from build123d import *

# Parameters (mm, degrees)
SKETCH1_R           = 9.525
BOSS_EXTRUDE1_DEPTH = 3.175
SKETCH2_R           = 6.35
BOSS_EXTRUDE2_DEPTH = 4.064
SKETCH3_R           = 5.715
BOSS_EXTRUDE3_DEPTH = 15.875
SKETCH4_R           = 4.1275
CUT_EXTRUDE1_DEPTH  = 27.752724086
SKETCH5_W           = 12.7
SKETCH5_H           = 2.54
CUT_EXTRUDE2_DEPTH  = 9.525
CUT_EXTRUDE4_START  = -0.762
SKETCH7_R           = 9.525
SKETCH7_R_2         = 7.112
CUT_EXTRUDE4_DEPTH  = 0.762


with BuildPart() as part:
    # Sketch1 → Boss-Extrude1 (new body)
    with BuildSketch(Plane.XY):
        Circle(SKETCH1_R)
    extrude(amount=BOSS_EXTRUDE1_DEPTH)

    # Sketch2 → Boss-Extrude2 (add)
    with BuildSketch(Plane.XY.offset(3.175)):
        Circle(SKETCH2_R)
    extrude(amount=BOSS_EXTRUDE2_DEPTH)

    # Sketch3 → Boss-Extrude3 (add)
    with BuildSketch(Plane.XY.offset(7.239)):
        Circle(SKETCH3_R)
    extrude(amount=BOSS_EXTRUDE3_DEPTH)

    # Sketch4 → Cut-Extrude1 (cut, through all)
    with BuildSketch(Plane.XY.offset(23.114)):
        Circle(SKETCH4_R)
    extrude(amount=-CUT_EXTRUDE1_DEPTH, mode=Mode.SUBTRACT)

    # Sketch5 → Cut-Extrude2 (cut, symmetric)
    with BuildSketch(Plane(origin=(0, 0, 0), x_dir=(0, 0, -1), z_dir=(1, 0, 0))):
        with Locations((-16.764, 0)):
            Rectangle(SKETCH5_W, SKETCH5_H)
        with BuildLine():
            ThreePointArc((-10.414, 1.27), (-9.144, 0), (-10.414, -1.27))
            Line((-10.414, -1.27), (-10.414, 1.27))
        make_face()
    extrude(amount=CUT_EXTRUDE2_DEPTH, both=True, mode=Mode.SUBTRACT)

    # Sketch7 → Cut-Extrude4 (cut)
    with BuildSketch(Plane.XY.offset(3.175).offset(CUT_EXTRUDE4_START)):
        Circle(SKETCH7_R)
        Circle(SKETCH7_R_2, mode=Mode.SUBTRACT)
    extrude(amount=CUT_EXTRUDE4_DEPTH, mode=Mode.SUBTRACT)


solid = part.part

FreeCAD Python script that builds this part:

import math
import FreeCAD as App
import Part
import Sketcher
Q = App.Units.Quantity

doc = App.newDocument("Part")
params = doc.addObject("Spreadsheet::Sheet", "Params")
for row, (alias, value) in enumerate([
    ("sketch1_diameter", "0.75 in"),
    ("pad1_length", "0.125 in"),
    ("sketch2_diameter", "0.5 in"),
    ("pad2_length", "0.16 in"),
    ("sketch3_diameter", "0.45 in"),
    ("pad3_length", "0.625 in"),
    ("sketch4_diameter", "0.325 in"),
    ("sketch5_radius", "0.05 in"),
    ("sketch5_height", "0.5 in"),
    ("pocket2_length", "0.75 in"),
    ("sketch6_diameter", "0.75 in"),
    ("sketch6_diameter2", "0.56 in"),
    ("pocket3_length", "0.03 in"),
], start=1):
    params.set(f"A{row}", alias)
    params.set(f"B{row}", "=" + value)
    params.setAlias(f"B{row}", alias)

body = doc.addObject("PartDesign::Body", "Body")

# Sketch on XY plane
sketch1 = body.newObject("Sketcher::SketchObject", "Sketch")
sketch1.AttachmentSupport = (doc.getObject("XY_Plane"), [""])
sketch1.MapMode = "FlatFace"
sketch1.addGeometry(Part.Circle(App.Vector(0, 0, 0), App.Vector(0, 0, 1), 10), False)
sketch1.addConstraint([
    Sketcher.Constraint("Coincident", 0, 3, -1, 1),
    Sketcher.Constraint("Diameter", 0, Q("0.75 in")),
])
sketch1.setExpression("Constraints[1]", "Params.sketch1_diameter")
pad1 = body.newObject("PartDesign::Pad", "Pad")
pad1.Profile = sketch1
pad1.setExpression("Length", "Params.pad1_length")

# Sketch on XY plane
sketch2 = body.newObject("Sketcher::SketchObject", "Sketch001")
sketch2.AttachmentSupport = (doc.getObject("XY_Plane"), [""])
sketch2.MapMode = "FlatFace"
sketch2.AttachmentOffset = App.Placement(App.Vector(0, 0, 0.125 * 25.4), App.Rotation())
sketch2.addGeometry(Part.Circle(App.Vector(0, 0, 0), App.Vector(0, 0, 1), 6), False)
sketch2.addConstraint([
    Sketcher.Constraint("Coincident", 0, 3, -1, 1),
    Sketcher.Constraint("Diameter", 0, Q("0.5 in")),
])
sketch2.setExpression("Constraints[1]", "Params.sketch2_diameter")
pad2 = body.newObject("PartDesign::Pad", "Pad001")
pad2.Profile = sketch2
pad2.setExpression("Length", "Params.pad2_length")

# Sketch on XY plane
sketch3 = body.newObject("Sketcher::SketchObject", "Sketch002")
sketch3.AttachmentSupport = (doc.getObject("XY_Plane"), [""])
sketch3.MapMode = "FlatFace"
sketch3.AttachmentOffset = App.Placement(App.Vector(0, 0, 0.285 * 25.4), App.Rotation())
sketch3.addGeometry(Part.Circle(App.Vector(0, 0, 0), App.Vector(0, 0, 1), 6), False)
sketch3.addConstraint([
    Sketcher.Constraint("Coincident", 0, 3, -1, 1),
    Sketcher.Constraint("Diameter", 0, Q("0.45 in")),
])
sketch3.setExpression("Constraints[1]", "Params.sketch3_diameter")
pad3 = body.newObject("PartDesign::Pad", "Pad002")
pad3.Profile = sketch3
pad3.setExpression("Length", "Params.pad3_length")

# Sketch on XY plane
sketch4 = body.newObject("Sketcher::SketchObject", "Sketch003")
sketch4.AttachmentSupport = (doc.getObject("XY_Plane"), [""])
sketch4.MapMode = "FlatFace"
sketch4.AttachmentOffset = App.Placement(App.Vector(0, 0, 0.91 * 25.4), App.Rotation())
sketch4.addGeometry(Part.Circle(App.Vector(0, 0, 0), App.Vector(0, 0, 1), 4.1), False)
sketch4.addConstraint([
    Sketcher.Constraint("Coincident", 0, 3, -1, 1),
    Sketcher.Constraint("Diameter", 0, Q("0.325 in")),
])
sketch4.setExpression("Constraints[1]", "Params.sketch4_diameter")
pocket1 = body.newObject("PartDesign::Pocket", "Pocket")
pocket1.Profile = sketch4
pocket1.Type = "ThroughAll"

# Sketch on YZ plane
sketch5 = body.newObject("Sketcher::SketchObject", "Sketch004")
sketch5.AttachmentSupport = (doc.getObject("YZ_Plane"), [""])
sketch5.MapMode = "FlatFace"
sketch5.addGeometry([
    Part.LineSegment(App.Vector(1.3, 23.1, 0), App.Vector(-1.3, 23.1, 0)),
    Part.LineSegment(App.Vector(-1.3, 23.1, 0), App.Vector(-1.3, 10.4, 0)),
    Part.ArcOfCircle(Part.Circle(App.Vector(0, 10.4, 0), App.Vector(0, 0, 1), 1.3), math.radians(180), math.radians(360)),
    Part.LineSegment(App.Vector(1.3, 10.4, 0), App.Vector(1.3, 23.1, 0)),
], False)
sketch5.addConstraint([
    Sketcher.Constraint("Coincident", 0, 2, 1, 1),
    Sketcher.Constraint("Tangent", 1, 2, 2, 1),
    Sketcher.Constraint("Tangent", 2, 2, 3, 1),
    Sketcher.Constraint("Coincident", 3, 2, 0, 1),
    Sketcher.Constraint("Horizontal", 0),
    Sketcher.Constraint("Vertical", 1),
    Sketcher.Constraint("Vertical", 3),
    Sketcher.Constraint("PointOnObject", 2, 3, -2),
    Sketcher.Constraint("Radius", 2, Q("0.05 in")),
    Sketcher.Constraint("DistanceY", 1, 2, 1, 1, Q("0.5 in")),
    Sketcher.Constraint("DistanceY", -1, 1, 2, 3, Q("0.41 in")),
])
sketch5.setExpression("Constraints[8]", "Params.sketch5_radius")
sketch5.setExpression("Constraints[9]", "Params.sketch5_height")
pocket2 = body.newObject("PartDesign::Pocket", "Pocket001")
pocket2.Profile = sketch5
pocket2.setExpression("Length", "Params.pocket2_length")
pocket2.Midplane = True

# Sketch on XY plane
sketch6 = body.newObject("Sketcher::SketchObject", "Sketch005")
sketch6.AttachmentSupport = (doc.getObject("XY_Plane"), [""])
sketch6.MapMode = "FlatFace"
sketch6.AttachmentOffset = App.Placement(App.Vector(0, 0, 0.095 * 25.4), App.Rotation())
sketch6.addGeometry([
    Part.Circle(App.Vector(0, 0, 0), App.Vector(0, 0, 1), 10),
    Part.Circle(App.Vector(0, 0, 0), App.Vector(0, 0, 1), 7),
], False)
sketch6.addConstraint([
    Sketcher.Constraint("Coincident", 0, 3, -1, 1),
    Sketcher.Constraint("Coincident", 1, 3, -1, 1),
    Sketcher.Constraint("Diameter", 0, Q("0.75 in")),
    Sketcher.Constraint("Diameter", 1, Q("0.56 in")),
])
sketch6.setExpression("Constraints[2]", "Params.sketch6_diameter")
sketch6.setExpression("Constraints[3]", "Params.sketch6_diameter2")
pocket3 = body.newObject("PartDesign::Pocket", "Pocket002")
pocket3.Profile = sketch6
pocket3.setExpression("Length", "Params.pocket3_length")
pocket3.Reversed = True

doc.recompute()
